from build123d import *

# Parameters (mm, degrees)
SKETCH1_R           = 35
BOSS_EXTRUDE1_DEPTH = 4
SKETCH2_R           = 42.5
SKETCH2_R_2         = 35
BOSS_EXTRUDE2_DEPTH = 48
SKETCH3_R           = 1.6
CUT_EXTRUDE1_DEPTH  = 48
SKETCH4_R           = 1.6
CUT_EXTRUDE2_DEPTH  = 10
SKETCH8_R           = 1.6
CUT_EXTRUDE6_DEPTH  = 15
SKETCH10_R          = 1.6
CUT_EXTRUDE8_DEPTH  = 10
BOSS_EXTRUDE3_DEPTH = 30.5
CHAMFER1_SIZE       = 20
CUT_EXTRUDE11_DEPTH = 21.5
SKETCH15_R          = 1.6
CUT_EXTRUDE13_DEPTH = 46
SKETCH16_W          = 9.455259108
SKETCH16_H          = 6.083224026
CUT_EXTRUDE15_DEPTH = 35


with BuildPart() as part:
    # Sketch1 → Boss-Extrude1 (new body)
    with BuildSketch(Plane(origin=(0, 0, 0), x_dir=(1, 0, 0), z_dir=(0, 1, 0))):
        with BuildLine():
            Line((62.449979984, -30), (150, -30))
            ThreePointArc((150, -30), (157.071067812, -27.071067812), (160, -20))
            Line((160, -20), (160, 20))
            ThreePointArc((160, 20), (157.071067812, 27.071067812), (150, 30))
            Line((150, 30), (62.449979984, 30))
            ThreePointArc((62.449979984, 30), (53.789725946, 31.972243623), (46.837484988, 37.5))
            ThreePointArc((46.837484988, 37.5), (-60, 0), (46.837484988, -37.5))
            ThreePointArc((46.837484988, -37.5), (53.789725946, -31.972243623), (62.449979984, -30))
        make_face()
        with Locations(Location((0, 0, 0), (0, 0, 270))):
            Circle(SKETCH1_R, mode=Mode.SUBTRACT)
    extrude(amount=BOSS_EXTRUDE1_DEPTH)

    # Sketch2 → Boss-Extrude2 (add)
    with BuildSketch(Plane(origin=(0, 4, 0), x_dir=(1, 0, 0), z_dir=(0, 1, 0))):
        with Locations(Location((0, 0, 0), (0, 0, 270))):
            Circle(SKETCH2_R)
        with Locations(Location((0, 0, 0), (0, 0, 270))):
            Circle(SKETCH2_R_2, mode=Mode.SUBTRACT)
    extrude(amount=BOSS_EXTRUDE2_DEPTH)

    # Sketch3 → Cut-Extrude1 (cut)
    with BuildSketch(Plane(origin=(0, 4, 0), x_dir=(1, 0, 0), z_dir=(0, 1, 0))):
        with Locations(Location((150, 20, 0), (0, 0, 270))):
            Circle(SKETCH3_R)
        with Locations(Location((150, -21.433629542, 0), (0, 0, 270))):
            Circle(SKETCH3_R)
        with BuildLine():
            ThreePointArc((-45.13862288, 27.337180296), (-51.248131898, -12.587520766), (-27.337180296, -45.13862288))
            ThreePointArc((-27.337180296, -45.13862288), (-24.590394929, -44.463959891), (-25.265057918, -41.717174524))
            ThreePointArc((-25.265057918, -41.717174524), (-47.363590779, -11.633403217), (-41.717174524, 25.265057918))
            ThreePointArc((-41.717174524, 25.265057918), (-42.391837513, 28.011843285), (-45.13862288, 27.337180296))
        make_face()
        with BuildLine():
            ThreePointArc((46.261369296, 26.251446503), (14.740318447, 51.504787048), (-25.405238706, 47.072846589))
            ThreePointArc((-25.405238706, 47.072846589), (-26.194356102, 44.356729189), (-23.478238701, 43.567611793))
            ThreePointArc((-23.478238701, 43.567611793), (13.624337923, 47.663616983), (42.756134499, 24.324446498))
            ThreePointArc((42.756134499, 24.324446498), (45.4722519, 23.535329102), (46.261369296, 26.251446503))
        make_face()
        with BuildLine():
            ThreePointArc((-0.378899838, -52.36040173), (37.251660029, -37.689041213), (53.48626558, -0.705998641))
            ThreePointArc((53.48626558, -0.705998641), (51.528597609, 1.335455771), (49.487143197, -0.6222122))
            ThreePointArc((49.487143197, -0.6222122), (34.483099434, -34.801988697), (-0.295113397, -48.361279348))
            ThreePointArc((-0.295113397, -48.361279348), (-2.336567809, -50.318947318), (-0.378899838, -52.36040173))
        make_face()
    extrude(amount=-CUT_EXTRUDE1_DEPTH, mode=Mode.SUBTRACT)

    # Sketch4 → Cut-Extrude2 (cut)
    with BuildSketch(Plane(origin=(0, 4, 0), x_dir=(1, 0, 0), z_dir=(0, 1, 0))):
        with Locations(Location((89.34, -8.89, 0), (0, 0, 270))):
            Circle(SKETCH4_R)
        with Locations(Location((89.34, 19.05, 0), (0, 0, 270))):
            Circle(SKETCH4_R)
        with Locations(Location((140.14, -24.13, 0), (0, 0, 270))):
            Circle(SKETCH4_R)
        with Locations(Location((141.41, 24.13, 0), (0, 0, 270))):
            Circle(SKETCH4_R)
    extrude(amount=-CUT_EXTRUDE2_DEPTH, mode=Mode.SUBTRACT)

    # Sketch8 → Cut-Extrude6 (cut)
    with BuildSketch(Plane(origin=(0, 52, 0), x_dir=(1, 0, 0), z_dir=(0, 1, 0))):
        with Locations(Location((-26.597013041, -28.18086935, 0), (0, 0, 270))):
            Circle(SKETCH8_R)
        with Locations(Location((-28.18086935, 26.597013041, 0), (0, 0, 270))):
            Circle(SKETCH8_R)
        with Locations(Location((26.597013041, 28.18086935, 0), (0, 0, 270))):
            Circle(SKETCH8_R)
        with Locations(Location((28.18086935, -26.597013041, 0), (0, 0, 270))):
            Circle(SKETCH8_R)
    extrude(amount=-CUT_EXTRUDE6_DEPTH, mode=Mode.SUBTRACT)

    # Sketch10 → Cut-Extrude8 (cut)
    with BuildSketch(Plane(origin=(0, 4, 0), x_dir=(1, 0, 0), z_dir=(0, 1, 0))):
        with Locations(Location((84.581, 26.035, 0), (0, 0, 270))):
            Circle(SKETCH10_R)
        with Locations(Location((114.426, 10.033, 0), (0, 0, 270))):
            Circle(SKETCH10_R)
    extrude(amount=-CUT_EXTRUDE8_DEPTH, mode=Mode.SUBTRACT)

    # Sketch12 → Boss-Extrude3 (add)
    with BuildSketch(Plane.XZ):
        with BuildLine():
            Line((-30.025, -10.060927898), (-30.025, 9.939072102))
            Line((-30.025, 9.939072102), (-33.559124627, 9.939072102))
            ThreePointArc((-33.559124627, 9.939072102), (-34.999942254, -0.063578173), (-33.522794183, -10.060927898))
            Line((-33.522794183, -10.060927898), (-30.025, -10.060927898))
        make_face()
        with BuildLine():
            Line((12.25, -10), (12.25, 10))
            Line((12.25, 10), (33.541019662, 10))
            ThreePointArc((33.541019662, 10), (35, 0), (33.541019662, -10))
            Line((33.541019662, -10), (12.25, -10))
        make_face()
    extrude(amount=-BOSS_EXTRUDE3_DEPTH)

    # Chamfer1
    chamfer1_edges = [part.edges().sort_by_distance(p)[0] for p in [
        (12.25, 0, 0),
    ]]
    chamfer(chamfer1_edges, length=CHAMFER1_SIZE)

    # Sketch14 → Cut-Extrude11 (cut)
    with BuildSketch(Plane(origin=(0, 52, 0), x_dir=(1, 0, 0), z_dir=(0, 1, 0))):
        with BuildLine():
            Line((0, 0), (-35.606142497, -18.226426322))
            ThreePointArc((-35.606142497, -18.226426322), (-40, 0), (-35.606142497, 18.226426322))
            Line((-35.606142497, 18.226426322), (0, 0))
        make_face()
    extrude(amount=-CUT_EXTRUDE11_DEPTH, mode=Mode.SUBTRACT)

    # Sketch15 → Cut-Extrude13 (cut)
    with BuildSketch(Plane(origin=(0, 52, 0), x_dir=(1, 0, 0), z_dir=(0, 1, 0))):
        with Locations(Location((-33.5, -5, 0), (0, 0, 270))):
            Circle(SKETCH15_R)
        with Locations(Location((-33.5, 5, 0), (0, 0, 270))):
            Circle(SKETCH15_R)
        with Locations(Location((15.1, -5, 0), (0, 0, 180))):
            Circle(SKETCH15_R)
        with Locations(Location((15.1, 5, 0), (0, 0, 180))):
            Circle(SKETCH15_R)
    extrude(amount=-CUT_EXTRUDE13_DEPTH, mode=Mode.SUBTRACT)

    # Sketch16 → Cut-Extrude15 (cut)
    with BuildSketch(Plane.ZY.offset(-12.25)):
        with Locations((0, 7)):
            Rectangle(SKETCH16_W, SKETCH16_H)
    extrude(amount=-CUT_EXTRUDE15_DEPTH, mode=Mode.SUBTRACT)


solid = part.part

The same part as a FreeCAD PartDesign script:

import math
import FreeCAD as App
import Part
import Sketcher

V = App.Vector
Q = App.Units.Quantity


def edges_at(feature, points):
    """Names of the edges that pass closest to the given points."""
    edges = feature.Shape.Edges
    near = lambda p: min(range(len(edges)), key=lambda i: edges[i].distToShape(Part.Vertex(*p))[0])
    return sorted({f"Edge{near(p) + 1}" for p in points})

doc = App.newDocument("Part")
body = doc.addObject("PartDesign::Body", "Body")

# Sketch on XZ plane
sketch1 = body.newObject("Sketcher::SketchObject", "Sketch")
sketch1.AttachmentSupport = (doc.getObject("XZ_Plane"), [""])
sketch1.MapMode = "FlatFace"
sketch1.addGeometry([
    Part.LineSegment(V(62, 30, 0), V(150, 30, 0)),  # 0
    Part.ArcOfCircle(Part.Circle(V(150, 20, 0), V(0, 0, 1), 10), math.radians(0), math.radians(90)),  # 1
    Part.LineSegment(V(160, 20, 0), V(160, -20, 0)),  # 2
    Part.ArcOfCircle(Part.Circle(V(150, -20, 0), V(0, 0, 1), 10), math.radians(-90), math.radians(0)),  # 3
    Part.LineSegment(V(150, -30, 0), V(62, -30, 0)),  # 4
    Part.ArcOfCircle(Part.Circle(V(62, -50, 0), V(0, 0, 1), 20), math.radians(90), math.radians(141)),  # 5
    Part.ArcOfCircle(Part.Circle(V(0, 0, 0), V(0, 0, 1), 60), math.radians(39), math.radians(321)),  # 6
    Part.ArcOfCircle(Part.Circle(V(62, 50, 0), V(0, 0, 1), 20), math.radians(-141), math.radians(-90)),  # 7
    Part.Circle(V(0, 0, 0), V(0, 0, 1), 35),  # 8
], False)
sketch1.addConstraint([
    Sketcher.Constraint("Tangent", 0, 2, 1, 2),
    Sketcher.Constraint("Tangent", 1, 1, 2, 1),
    Sketcher.Constraint("Tangent", 2, 2, 3, 2),
    Sketcher.Constraint("Tangent", 3, 1, 4, 1),
    Sketcher.Constraint("Tangent", 4, 2, 5, 1),
    Sketcher.Constraint("Tangent", 5, 2, 6, 2),
    Sketcher.Constraint("Tangent", 6, 1, 7, 1),
    Sketcher.Constraint("Tangent", 7, 2, 0, 1),
    Sketcher.Constraint("Horizontal", 0),
    Sketcher.Constraint("Vertical", 2),
    Sketcher.Constraint("Horizontal", 4),
    Sketcher.Constraint("Coincident", 6, 3, -1, 1),
    Sketcher.Constraint("Coincident", 8, 3, -1, 1),
    Sketcher.Constraint("Equal", 1, 3),
    Sketcher.Constraint("Equal", 5, 7),
    Sketcher.Constraint("Vertical", 5, 3, 7, 3),
    Sketcher.Constraint("Diameter", 8, Q("70 mm")),
    Sketcher.Constraint("Radius", 1, Q("10 mm")),
    Sketcher.Constraint("Radius", 5, Q("20 mm")),
    Sketcher.Constraint("Radius", 6, Q("60 mm")),
    Sketcher.Constraint("DistanceY", 2, 2, 2, 1, Q("40 mm")),
    Sketcher.Constraint("DistanceX", -1, 1, 1, 3, Q("150 mm")),
])
pad1 = body.newObject("PartDesign::Pad", "Pad")
pad1.Profile = sketch1
pad1.Length = 4
pad1.Reversed = True

# Sketch on XZ plane
sketch2 = body.newObject("Sketcher::SketchObject", "Sketch001")
sketch2.AttachmentSupport = (doc.getObject("XZ_Plane"), [""])
sketch2.MapMode = "FlatFace"
sketch2.AttachmentOffset = App.Placement(V(0, 0, -4), App.Rotation())
sketch2.addGeometry([
    Part.Circle(V(0, 0, 0), V(0, 0, 1), 42),
    Part.Circle(V(0, 0, 0), V(0, 0, 1), 35),
], False)
sketch2.addConstraint([
    Sketcher.Constraint("Coincident", 0, 3, -1, 1),
    Sketcher.Constraint("Coincident", 1, 3, -1, 1),
    Sketcher.Constraint("Diameter", 0, Q("85 mm")),
    Sketcher.Constraint("Diameter", 1, Q("70 mm")),
])
pad2 = body.newObject("PartDesign::Pad", "Pad001")
pad2.Profile = sketch2
pad2.Length = 48
pad2.Reversed = True

# Sketch on XZ plane
sketch3 = body.newObject("Sketcher::SketchObject", "Sketch002")
sketch3.AttachmentSupport = (doc.getObject("XZ_Plane"), [""])
sketch3.MapMode = "FlatFace"
sketch3.AttachmentOffset = App.Placement(V(0, 0, -4), App.Rotation())
sketch3.addGeometry([
    Part.Circle(V(150, -20, 0), V(0, 0, 1), 1.6),  # 0
    Part.Circle(V(150, 21.4, 0), V(0, 0, 1), 1.6),  # 1
    Part.ArcOfCircle(Part.Circle(V(0, 0, 0), V(0, 0, 1), 52.8), math.radians(121), math.radians(211)),  # 2
    Part.ArcOfCircle(Part.Circle(V(-26.3, 43.4, 0), V(0, 0, 1), 2), math.radians(-59), math.radians(121)),  # 3
    Part.ArcOfCircle(Part.Circle(V(0, 0, 0), V(0, 0, 1), 48.8), math.radians(121), math.radians(211)),  # 4
    Part.ArcOfCircle(Part.Circle(V(-43.4, -26.3, 0), V(0, 0, 1), 2), math.radians(-149), math.radians(31)),  # 5
    Part.ArcOfCircle(Part.Circle(V(0, -0.8, 0), V(0, 0, 1), 52.8), math.radians(-119), math.radians(-29)),  # 6
    Part.ArcOfCircle(Part.Circle(V(-24.4, -45.3, 0), V(0, 0, 1), 2), math.radians(61), math.radians(241)),  # 7
    Part.ArcOfCircle(Part.Circle(V(0, -0.8, 0), V(0, 0, 1), 48.8), math.radians(-119), math.radians(-29)),  # 8
    Part.ArcOfCircle(Part.Circle(V(44.5, -25.3, 0), V(0, 0, 1), 2), math.radians(-29), math.radians(151)),  # 9
    Part.ArcOfCircle(Part.Circle(V(0.7, -0.4, 0), V(0, 0, 1), 52.8), math.radians(1), math.radians(91)),  # 10
    Part.ArcOfCircle(Part.Circle(V(51.5, 0.7, 0), V(0, 0, 1), 2), math.radians(-179), math.radians(1)),  # 11
    Part.ArcOfCircle(Part.Circle(V(0.7, -0.4, 0), V(0, 0, 1), 48.8), math.radians(1), math.radians(91)),  # 12
    Part.ArcOfCircle(Part.Circle(V(-0.3, 50.4, 0), V(0, 0, 1), 2), math.radians(91), math.radians(271)),  # 13
], False)
sketch3.addConstraint([
    Sketcher.Constraint("Tangent", 2, 1, 3, 2),
    Sketcher.Constraint("Tangent", 3, 1, 4, 1),
    Sketcher.Constraint("Tangent", 4, 2, 5, 2),
    Sketcher.Constraint("Tangent", 5, 1, 2, 2),
    Sketcher.Constraint("Tangent", 6, 1, 7, 2),
    Sketcher.Constraint("Tangent", 7, 1, 8, 1),
    Sketcher.Constraint("Tangent", 8, 2, 9, 2),
    Sketcher.Constraint("Tangent", 9, 1, 6, 2),
    Sketcher.Constraint("Tangent", 10, 1, 11, 2),
    Sketcher.Constraint("Tangent", 11, 1, 12, 1),
    Sketcher.Constraint("Tangent", 12, 2, 13, 2),
    Sketcher.Constraint("Tangent", 13, 1, 10, 2),
    Sketcher.Constraint("Coincident", 2, 3, -1, 1),
    Sketcher.Constraint("Coincident", 4, 3, -1, 1),
    Sketcher.Constraint("Coincident", 8, 3, 6, 3),
    Sketcher.Constraint("Coincident", 12, 3, 10, 3),
    Sketcher.Constraint("Equal", 0, 1),
    Sketcher.Constraint("Equal", 2, 6),
    Sketcher.Constraint("Equal", 5, 7),
    Sketcher.Constraint("Equal", 6, 10),
    Sketcher.Constraint("Equal", 9, 11),
    Sketcher.Constraint("Vertical", 0, 3, 1, 3),
    Sketcher.Constraint("Radius", 3, Q("2 mm")),
    Sketcher.Constraint("Diameter", 0, Q("3.2 mm")),
    Sketcher.Constraint("DistanceX", -1, 1, 0, 3, Q("150 mm")),
    Sketcher.Constraint("DistanceY", 0, 3, -1, 1, Q("20 mm")),
    Sketcher.Constraint("DistanceY", -1, 1, 10, 1, Q("0.705999 mm")),
    Sketcher.Constraint("Radius", 2, Q("52.771363 mm")),
    Sketcher.Constraint("DistanceY", -1, 1, 3, 3, Q("43.427899 mm")),
    Sketcher.Constraint("DistanceX", 5, 3, -1, 1, Q("43.427899 mm")),
    Sketcher.Constraint("DistanceX", 13, 1, -1, 1, Q("0.3789 mm")),
    Sketcher.Constraint("DistanceY", -1, 1, 13, 1, Q("52.360402 mm")),
    Sketcher.Constraint("DistanceX", 7, 3, 7, 1, Q("0.9635 mm")),
    Sketcher.Constraint("DistanceY", 9, 1, 9, 3, Q("0.9635 mm")),
    Sketcher.Constraint("DistanceY", -1, 1, 1, 3, Q("21.43363 mm")),
    Sketcher.Constraint("DistanceX", 7, 3, -1, 1, Q("24.441739 mm")),
    Sketcher.Constraint("DistanceY", 7, 3, -1, 1, Q("45.320229 mm")),
    Sketcher.Constraint("DistanceX", -1, 1, 10, 3, Q("0.726481 mm")),
])
pocket1 = body.newObject("PartDesign::Pocket", "Pocket")
pocket1.Profile = sketch3
pocket1.Length = 48
pocket1.Reversed = True

# Sketch on XZ plane
sketch4 = body.newObject("Sketcher::SketchObject", "Sketch003")
sketch4.AttachmentSupport = (doc.getObject("XZ_Plane"), [""])
sketch4.MapMode = "FlatFace"
sketch4.AttachmentOffset = App.Placement(V(0, 0, -4), App.Rotation())
sketch4.addGeometry([
    Part.Circle(V(89.3, 8.9, 0), V(0, 0, 1), 1.6),
    Part.Circle(V(89.3, -19.1, 0), V(0, 0, 1), 1.6),
    Part.Circle(V(140.1, 24.1, 0), V(0, 0, 1), 1.6),
    Part.Circle(V(141.4, -24.1, 0), V(0, 0, 1), 1.6),
], False)
sketch4.addConstraint([
    Sketcher.Constraint("Equal", 0, 1),
    Sketcher.Constraint("Equal", 1, 2),
    Sketcher.Constraint("Equal", 2, 3),
    Sketcher.Constraint("Vertical", 0, 3, 1, 3),
    Sketcher.Constraint("Diameter", 0, Q("3.2 mm")),
    Sketcher.Constraint("DistanceX", 0, 3, 2, 3, Q("50.8 mm")),
    Sketcher.Constraint("DistanceX", -1, 1, 0, 3, Q("89.34 mm")),
    Sketcher.Constraint("DistanceY", -1, 1, 0, 3, Q("8.89 mm")),
    Sketcher.Constraint("DistanceY", 1, 3, -1, 1, Q("19.05 mm")),
    Sketcher.Constraint("DistanceY", -1, 1, 2, 3, Q("24.13 mm")),
    Sketcher.Constraint("DistanceX", -1, 1, 3, 3, Q("141.41 mm")),
    Sketcher.Constraint("DistanceY", 3, 3, -1, 1, Q("24.13 mm")),
])
pocket2 = body.newObject("PartDesign::Pocket", "Pocket001")
pocket2.Profile = sketch4
pocket2.Length = 10
pocket2.Reversed = True

# Sketch on XZ plane
sketch5 = body.newObject("Sketcher::SketchObject", "Sketch004")
sketch5.AttachmentSupport = (doc.getObject("XZ_Plane"), [""])
sketch5.MapMode = "FlatFace"
sketch5.AttachmentOffset = App.Placement(V(0, 0, -52), App.Rotation())
sketch5.addGeometry([
    Part.Circle(V(-26.6, 28.2, 0), V(0, 0, 1), 1.6),
    Part.Circle(V(-28.2, -26.6, 0), V(0, 0, 1), 1.6),
    Part.Circle(V(26.6, -28.2, 0), V(0, 0, 1), 1.6),
    Part.Circle(V(28.2, 26.6, 0), V(0, 0, 1), 1.6),
], False)
sketch5.addConstraint([
    Sketcher.Constraint("Equal", 0, 1),
    Sketcher.Constraint("Equal", 1, 2),
    Sketcher.Constraint("Equal", 2, 3),
    Sketcher.Constraint("Symmetric", 0, 3, 2, 3, -1, 1),
    Sketcher.Constraint("Symmetric", 1, 3, 3, 3, -1, 1),
    Sketcher.Constraint("Diameter", 0, Q("3.2 mm")),
    Sketcher.Constraint("DistanceY", -1, 1, 0, 3, Q("28.180869 mm")),
    Sketcher.Constraint("DistanceX", 1, 3, -1, 1, Q("28.180869 mm")),
    Sketcher.Constraint("DistanceX", 0, 3, -1, 1, Q("26.597013 mm")),
    Sketcher.Constraint("DistanceY", 1, 3, -1, 1, Q("26.597013 mm")),
])
pocket3 = body.newObject("PartDesign::Pocket", "Pocket002")
pocket3.Profile = sketch5
pocket3.Length = 15
pocket3.Reversed = True

# Sketch on XZ plane
sketch6 = body.newObject("Sketcher::SketchObject", "Sketch005")
sketch6.AttachmentSupport = (doc.getObject("XZ_Plane"), [""])
sketch6.MapMode = "FlatFace"
sketch6.AttachmentOffset = App.Placement(V(0, 0, -4), App.Rotation())
sketch6.addGeometry([
    Part.Circle(V(84.6, -26, 0), V(0, 0, 1), 1.6),
    Part.Circle(V(114.4, -10, 0), V(0, 0, 1), 1.6),
], False)
sketch6.addConstraint([
    Sketcher.Constraint("Equal", 0, 1),
    Sketcher.Constraint("Diameter", 0, Q("3.2 mm")),
    Sketcher.Constraint("DistanceX", -1, 1, 0, 3, Q("84.581 mm")),
    Sketcher.Constraint("DistanceY", 0, 3, -1, 1, Q("26.035 mm")),
    Sketcher.Constraint("DistanceX", -1, 1, 1, 3, Q("114.426 mm")),
    Sketcher.Constraint("DistanceY", 1, 3, -1, 1, Q("10.033 mm")),
])
pocket4 = body.newObject("PartDesign::Pocket", "Pocket003")
pocket4.Profile = sketch6
pocket4.Length = 10
pocket4.Reversed = True

# Sketch on XZ plane
sketch7 = body.newObject("Sketcher::SketchObject", "Sketch006")
sketch7.AttachmentSupport = (doc.getObject("XZ_Plane"), [""])
sketch7.MapMode = "FlatFace"
sketch7.addGeometry([
    Part.LineSegment(V(-30, -10.1, 0), V(-30, 9.9, 0)),  # 0
    Part.LineSegment(V(-30, 9.9, 0), V(-33.6, 9.9, 0)),  # 1
    Part.ArcOfCircle(Part.Circle(V(0, 0, 0), V(0, 0, 1), 35), math.radians(164), math.radians(197)),  # 2
    Part.LineSegment(V(-33.5, -10.1, 0), V(-30, -10.1, 0)),  # 3
    Part.LineSegment(V(12.2, 10, 0), V(12.2, -10, 0)),  # 4
    Part.LineSegment(V(12.2, -10, 0), V(33.5, -10, 0)),  # 5
    Part.ArcOfCircle(Part.Circle(V(0, 0, 0), V(0, 0, 1), 35), math.radians(-17), math.radians(17)),  # 6
    Part.LineSegment(V(33.5, 10, 0), V(12.2, 10, 0)),  # 7
], False)
sketch7.addConstraint([
    Sketcher.Constraint("Coincident", 0, 2, 1, 1),
    Sketcher.Constraint("Coincident", 1, 2, 2, 1),
    Sketcher.Constraint("Coincident", 2, 2, 3, 1),
    Sketcher.Constraint("Coincident", 3, 2, 0, 1),
    Sketcher.Constraint("Coincident", 4, 2, 5, 1),
    Sketcher.Constraint("Coincident", 5, 2, 6, 1),
    Sketcher.Constraint("Coincident", 6, 2, 7, 1),
    Sketcher.Constraint("Coincident", 7, 2, 4, 1),
    Sketcher.Constraint("Vertical", 0),
    Sketcher.Constraint("Horizontal", 1),
    Sketcher.Constraint("Horizontal", 3),
    Sketcher.Constraint("Vertical", 4),
    Sketcher.Constraint("Horizontal", 5),
    Sketcher.Constraint("Horizontal", 7),
    Sketcher.Constraint("Coincident", 2, 3, -1, 1),
    Sketcher.Constraint("Coincident", 6, 3, -1, 1),
    Sketcher.Constraint("Equal", 2, 6),
    Sketcher.Constraint("Vertical", 5, 2, 6, 2),
    Sketcher.Constraint("Equal", 0, 4),
    Sketcher.Constraint("Radius", 2, Q("35 mm")),
    Sketcher.Constraint("DistanceY", 0, 1, 0, 2, Q("20 mm")),
    Sketcher.Constraint("DistanceX", -1, 1, 4, 2, Q("12.25 mm")),
    Sketcher.Constraint("DistanceX", 0, 2, -1, 1, Q("30.025 mm")),
    Sketcher.Constraint("DistanceX", 1, 2, 1, 1, Q("3.534125 mm")),
])
pad3 = body.newObject("PartDesign::Pad", "Pad002")
pad3.Profile = sketch7
pad3.Length = 30.5
pad3.Reversed = True
doc.recompute()

chamfer = body.newObject("PartDesign::Chamfer", "Chamfer")
chamfer.Base = (pad3, edges_at(pad3, [(12.25, 0, 0)]))
chamfer.Size = 20

# Sketch on XZ plane
sketch8 = body.newObject("Sketcher::SketchObject", "Sketch007")
sketch8.AttachmentSupport = (doc.getObject("XZ_Plane"), [""])
sketch8.MapMode = "FlatFace"
sketch8.AttachmentOffset = App.Placement(V(0, 0, -52), App.Rotation())
sketch8.addGeometry([
    Part.LineSegment(V(-36, 18, 0), V(0, 0, 0)),
    Part.LineSegment(V(0, 0, 0), V(-36, -18, 0)),
    Part.ArcOfCircle(Part.Circle(V(0, 0, 0), V(0, 0, 1), 40), math.radians(153), math.radians(207)),
], False)
sketch8.addConstraint([
    Sketcher.Constraint("Coincident", 0, 2, 1, 1),
    Sketcher.Constraint("Coincident", 1, 2, 2, 2),
    Sketcher.Constraint("Coincident", 2, 1, 0, 1),
    Sketcher.Constraint("Coincident", 2, 3, -1, 1),
    Sketcher.Constraint("Coincident", 0, 2, -1, 1),
    Sketcher.Constraint("Vertical", 1, 2, 2, 1),
    Sketcher.Constraint("Radius", 2, Q("40 mm")),
    Sketcher.Constraint("DistanceX", 1, 2, -1, 1, Q("35.606142 mm")),
])
pocket5 = body.newObject("PartDesign::Pocket", "Pocket004")
pocket5.Profile = sketch8
pocket5.Length = 21.5
pocket5.Reversed = True

# Sketch on XZ plane
sketch9 = body.newObject("Sketcher::SketchObject", "Sketch008")
sketch9.AttachmentSupport = (doc.getObject("XZ_Plane"), [""])
sketch9.MapMode = "FlatFace"
sketch9.AttachmentOffset = App.Placement(V(0, 0, -52), App.Rotation())
sketch9.addGeometry([
    Part.Circle(V(-33.5, 5, 0), V(0, 0, 1), 1.6),
    Part.Circle(V(-33.5, -5, 0), V(0, 0, 1), 1.6),
    Part.Circle(V(15.1, 5, 0), V(0, 0, 1), 1.6),
    Part.Circle(V(15.1, -5, 0), V(0, 0, 1), 1.6),
], False)
sketch9.addConstraint([
    Sketcher.Constraint("Equal", 0, 1),
    Sketcher.Constraint("Equal", 1, 2),
    Sketcher.Constraint("Equal", 2, 3),
    Sketcher.Constraint("Symmetric", 0, 3, 1, 3, -1),
    Sketcher.Constraint("Symmetric", 2, 3, 3, 3, -1),
    Sketcher.Constraint("Horizontal", 0, 3, 2, 3),
    Sketcher.Constraint("Diameter", 0, Q("3.2 mm")),
    Sketcher.Constraint("DistanceY", -1, 1, 0, 3, Q("5 mm")),
    Sketcher.Constraint("DistanceX", 0, 3, -1, 1, Q("33.5 mm")),
    Sketcher.Constraint("DistanceX", -1, 1, 2, 3, Q("15.1 mm")),
])
pocket6 = body.newObject("PartDesign::Pocket", "Pocket005")
pocket6.Profile = sketch9
pocket6.Length = 46
pocket6.Reversed = True

# Sketch on YZ plane
sketch10 = body.newObject("Sketcher::SketchObject", "Sketch009")
sketch10.AttachmentSupport = (doc.getObject("YZ_Plane"), [""])
sketch10.MapMode = "FlatFace"
sketch10.AttachmentOffset = App.Placement(V(0, 0, 12.25), App.Rotation())
sketch10.addGeometry([
    Part.LineSegment(V(10, -5, 0), V(4, -5, 0)),
    Part.LineSegment(V(4, -5, 0), V(4, 5, 0)),
    Part.LineSegment(V(4, 5, 0), V(10, 5, 0)),
    Part.LineSegment(V(10, 5, 0), V(10, -5, 0)),
], False)
sketch10.addConstraint([
    Sketcher.Constraint("Coincident", 0, 2, 1, 1),
    Sketcher.Constraint("Coincident", 1, 2, 2, 1),
    Sketcher.Constraint("Coincident", 2, 2, 3, 1),
    Sketcher.Constraint("Coincident", 3, 2, 0, 1),
    Sketcher.Constraint("Horizontal", 0),
    Sketcher.Constraint("Vertical", 1),
    Sketcher.Constraint("Horizontal", 2),
    Sketcher.Constraint("Vertical", 3),
    Sketcher.Constraint("DistanceY", 1, 1, 1, 2, Q("9.455259 mm")),
    Sketcher.Constraint("DistanceX", 0, 2, 0, 1, Q("6.083224 mm")),
    Sketcher.Constraint("DistanceY", 0, 2, -1, 1, Q("4.72763 mm")),
    Sketcher.Constraint("DistanceX", -1, 1, 0, 2, Q("3.958388 mm")),
])
pocket7 = body.newObject("PartDesign::Pocket", "Pocket006")
pocket7.Profile = sketch10
pocket7.Length = 35
pocket7.Reversed = True

doc.recompute()
